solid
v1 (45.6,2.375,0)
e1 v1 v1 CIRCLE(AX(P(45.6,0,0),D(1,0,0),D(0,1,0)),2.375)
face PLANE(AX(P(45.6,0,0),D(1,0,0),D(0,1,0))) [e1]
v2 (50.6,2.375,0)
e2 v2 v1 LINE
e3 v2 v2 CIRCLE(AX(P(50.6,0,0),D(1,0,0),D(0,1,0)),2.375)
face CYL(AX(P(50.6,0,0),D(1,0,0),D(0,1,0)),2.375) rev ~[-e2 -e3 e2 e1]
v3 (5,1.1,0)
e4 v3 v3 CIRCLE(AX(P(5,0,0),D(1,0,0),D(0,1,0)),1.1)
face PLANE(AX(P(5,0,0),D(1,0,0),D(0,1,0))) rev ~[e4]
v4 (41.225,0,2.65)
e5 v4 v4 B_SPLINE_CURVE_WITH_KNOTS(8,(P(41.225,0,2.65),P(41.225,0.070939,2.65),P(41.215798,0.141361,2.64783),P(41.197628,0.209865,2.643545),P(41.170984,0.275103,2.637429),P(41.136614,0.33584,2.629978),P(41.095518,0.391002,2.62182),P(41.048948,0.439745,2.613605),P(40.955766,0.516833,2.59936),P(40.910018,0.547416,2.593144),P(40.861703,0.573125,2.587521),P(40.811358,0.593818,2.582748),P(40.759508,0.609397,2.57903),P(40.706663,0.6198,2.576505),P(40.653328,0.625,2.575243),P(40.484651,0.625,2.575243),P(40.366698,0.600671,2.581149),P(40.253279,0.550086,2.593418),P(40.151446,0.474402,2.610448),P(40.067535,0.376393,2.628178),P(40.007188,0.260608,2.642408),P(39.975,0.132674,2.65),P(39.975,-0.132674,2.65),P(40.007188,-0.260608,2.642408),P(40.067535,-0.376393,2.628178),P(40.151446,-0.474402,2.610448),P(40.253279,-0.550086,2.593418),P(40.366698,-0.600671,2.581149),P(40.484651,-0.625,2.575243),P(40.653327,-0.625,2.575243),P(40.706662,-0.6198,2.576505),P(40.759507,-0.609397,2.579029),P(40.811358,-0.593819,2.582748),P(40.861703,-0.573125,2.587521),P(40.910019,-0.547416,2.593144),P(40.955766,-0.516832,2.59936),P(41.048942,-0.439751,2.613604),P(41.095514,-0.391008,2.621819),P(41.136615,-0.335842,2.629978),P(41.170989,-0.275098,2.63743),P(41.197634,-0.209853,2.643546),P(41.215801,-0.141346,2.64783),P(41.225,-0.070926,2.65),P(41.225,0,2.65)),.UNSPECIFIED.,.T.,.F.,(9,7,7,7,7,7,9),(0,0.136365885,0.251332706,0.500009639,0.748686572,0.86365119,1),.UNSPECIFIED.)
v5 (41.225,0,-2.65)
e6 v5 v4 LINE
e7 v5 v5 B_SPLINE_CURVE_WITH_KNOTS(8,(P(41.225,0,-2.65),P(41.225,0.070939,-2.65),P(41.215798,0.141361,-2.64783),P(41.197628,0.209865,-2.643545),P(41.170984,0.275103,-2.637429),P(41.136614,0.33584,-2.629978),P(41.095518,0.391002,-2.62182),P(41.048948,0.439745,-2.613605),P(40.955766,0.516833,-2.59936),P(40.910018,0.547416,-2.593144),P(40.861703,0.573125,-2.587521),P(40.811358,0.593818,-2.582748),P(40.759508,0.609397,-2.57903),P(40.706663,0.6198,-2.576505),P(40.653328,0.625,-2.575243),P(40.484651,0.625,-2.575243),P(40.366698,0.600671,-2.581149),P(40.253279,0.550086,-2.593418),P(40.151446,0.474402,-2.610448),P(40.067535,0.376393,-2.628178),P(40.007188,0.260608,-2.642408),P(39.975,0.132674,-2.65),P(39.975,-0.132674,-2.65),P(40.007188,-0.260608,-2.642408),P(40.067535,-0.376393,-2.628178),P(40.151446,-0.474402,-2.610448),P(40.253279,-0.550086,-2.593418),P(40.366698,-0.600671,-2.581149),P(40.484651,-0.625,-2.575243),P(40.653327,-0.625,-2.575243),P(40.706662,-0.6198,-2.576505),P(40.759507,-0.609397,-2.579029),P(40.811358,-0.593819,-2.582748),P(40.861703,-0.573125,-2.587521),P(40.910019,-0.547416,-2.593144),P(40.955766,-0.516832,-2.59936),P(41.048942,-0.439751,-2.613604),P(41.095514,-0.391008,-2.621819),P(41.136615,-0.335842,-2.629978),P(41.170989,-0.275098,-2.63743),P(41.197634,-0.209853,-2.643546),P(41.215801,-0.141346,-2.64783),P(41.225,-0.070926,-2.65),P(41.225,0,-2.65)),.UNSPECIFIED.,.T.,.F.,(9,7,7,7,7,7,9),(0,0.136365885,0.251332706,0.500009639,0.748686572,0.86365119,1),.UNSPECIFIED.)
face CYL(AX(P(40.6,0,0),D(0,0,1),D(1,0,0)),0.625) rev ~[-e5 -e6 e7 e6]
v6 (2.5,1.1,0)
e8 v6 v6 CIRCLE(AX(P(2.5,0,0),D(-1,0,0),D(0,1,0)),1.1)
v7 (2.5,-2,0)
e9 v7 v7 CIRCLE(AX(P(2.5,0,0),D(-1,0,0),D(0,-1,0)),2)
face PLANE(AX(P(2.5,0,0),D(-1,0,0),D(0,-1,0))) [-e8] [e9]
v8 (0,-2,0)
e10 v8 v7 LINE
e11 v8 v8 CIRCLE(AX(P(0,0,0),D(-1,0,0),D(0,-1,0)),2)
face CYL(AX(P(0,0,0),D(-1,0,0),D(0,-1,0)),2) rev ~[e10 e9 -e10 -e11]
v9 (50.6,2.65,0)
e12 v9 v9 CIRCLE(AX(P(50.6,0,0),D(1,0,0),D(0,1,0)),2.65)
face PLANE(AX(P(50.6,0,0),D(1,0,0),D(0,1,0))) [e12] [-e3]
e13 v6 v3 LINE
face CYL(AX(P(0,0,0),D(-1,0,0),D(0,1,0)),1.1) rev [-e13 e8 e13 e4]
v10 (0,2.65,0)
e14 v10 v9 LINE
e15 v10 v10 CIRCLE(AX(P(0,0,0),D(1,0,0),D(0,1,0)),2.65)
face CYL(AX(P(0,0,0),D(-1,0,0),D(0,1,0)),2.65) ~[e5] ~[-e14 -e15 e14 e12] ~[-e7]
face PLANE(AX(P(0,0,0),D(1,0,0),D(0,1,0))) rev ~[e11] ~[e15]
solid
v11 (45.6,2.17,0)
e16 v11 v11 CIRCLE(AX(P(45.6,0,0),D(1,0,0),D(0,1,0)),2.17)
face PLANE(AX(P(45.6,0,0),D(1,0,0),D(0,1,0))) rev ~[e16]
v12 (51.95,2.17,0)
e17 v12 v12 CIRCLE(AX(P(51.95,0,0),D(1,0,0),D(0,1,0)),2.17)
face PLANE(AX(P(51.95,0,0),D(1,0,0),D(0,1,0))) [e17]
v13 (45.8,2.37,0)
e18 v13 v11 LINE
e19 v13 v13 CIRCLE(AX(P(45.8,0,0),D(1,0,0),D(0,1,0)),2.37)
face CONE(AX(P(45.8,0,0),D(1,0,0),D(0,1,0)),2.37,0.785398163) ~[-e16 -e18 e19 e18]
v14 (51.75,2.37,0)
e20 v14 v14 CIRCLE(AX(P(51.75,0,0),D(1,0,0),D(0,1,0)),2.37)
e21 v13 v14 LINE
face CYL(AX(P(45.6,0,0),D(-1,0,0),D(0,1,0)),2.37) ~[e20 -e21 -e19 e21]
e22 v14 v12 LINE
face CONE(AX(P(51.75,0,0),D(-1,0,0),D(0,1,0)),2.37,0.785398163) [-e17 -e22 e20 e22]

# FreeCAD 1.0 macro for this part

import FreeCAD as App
import Part
import Sketcher
from FreeCAD import Vector


def edges_at(feature, points):
    """Names of the edges that pass closest to the given points."""
    edges = feature.Shape.Edges
    near = lambda p: min(range(len(edges)), key=lambda i: edges[i].distToShape(Part.Vertex(*p))[0])
    return sorted({f"Edge{near(p) + 1}" for p in points})

doc = App.newDocument("Part")
params = doc.addObject("Spreadsheet::Sheet", "Params")
for row, (alias, value) in enumerate([
    ("sketch1_diameter", "5.3 mm"),
    ("pad1_length", "50.6 mm"),
    ("sketch2_diameter", "2.2 mm"),
    ("pocket1_length", "5 mm"),
    ("sketch3_diameter", "1.25 mm"),
    ("pocket2_length", "25 mm"),
    ("sketch4_diameter", "4 mm"),
    ("pocket3_length", "2.5 mm"),
    ("sketch5_diameter", "4.75 mm"),
    ("pocket4_length", "5 mm"),
    ("sketch6_diameter", "4.74 mm"),
    ("pad2_length", "6.35 mm"),
    ("chamfer_size", "0.2 mm"),
], start=1):
    params.set(f"A{row}", alias)
    params.set(f"B{row}", "=" + value)
    params.setAlias(f"B{row}", alias)

body = doc.addObject("PartDesign::Body", "Body")

# Sketch on YZ plane
sketch1 = body.newObject("Sketcher::SketchObject", "Sketch")
sketch1.AttachmentSupport = (doc.getObject("YZ_Plane"), [""])
sketch1.MapMode = "FlatFace"
sketch1.addGeometry(Part.Circle(Vector(0, 0, 0), Vector(0, 0, 1), 2.6), False)
sketch1.addConstraint(Sketcher.Constraint("Coincident", 0, 3, -1, 1))
sketch1.addConstraint(Sketcher.Constraint("Diameter", 0, 5.3))
sketch1.setExpression("Constraints[1]", "Params.sketch1_diameter")
pad1 = body.newObject("PartDesign::Pad", "Pad")
pad1.Profile = sketch1
pad1.setExpression("Length", "Params.pad1_length")

# Sketch on YZ plane
sketch2 = body.newObject("Sketcher::SketchObject", "Sketch001")
sketch2.AttachmentSupport = (doc.getObject("YZ_Plane"), [""])
sketch2.MapMode = "FlatFace"
sketch2.addGeometry(Part.Circle(Vector(0, 0, 0), Vector(0, 0, 1), 1.1), False)
sketch2.addConstraint(Sketcher.Constraint("Coincident", 0, 3, -1, 1))
sketch2.addConstraint(Sketcher.Constraint("Diameter", 0, 2.2))
sketch2.setExpression("Constraints[1]", "Params.sketch2_diameter")
pocket1 = body.newObject("PartDesign::Pocket", "Pocket")
pocket1.Profile = sketch2
pocket1.setExpression("Length", "Params.pocket1_length")
pocket1.Reversed = True

# Sketch on XY plane
sketch3 = body.newObject("Sketcher::SketchObject", "Sketch002")
sketch3.AttachmentSupport = (doc.getObject("XY_Plane"), [""])
sketch3.MapMode = "FlatFace"
sketch3.addGeometry(Part.Circle(Vector(40.6, 0, 0), Vector(0, 0, 1), 0.6), False)
sketch3.addConstraint(Sketcher.Constraint("PointOnObject", 0, 3, -1))
sketch3.addConstraint(Sketcher.Constraint("Diameter", 0, 1.25))
sketch3.addConstraint(Sketcher.Constraint("DistanceX", -1, 1, 0, 3, 40.6))
sketch3.setExpression("Constraints[1]", "Params.sketch3_diameter")
pocket2 = body.newObject("PartDesign::Pocket", "Pocket001")
pocket2.Profile = sketch3
pocket2.setExpression("Length", "Params.pocket2_length")
pocket2.Midplane = True

# Sketch on YZ plane
sketch4 = body.newObject("Sketcher::SketchObject", "Sketch003")
sketch4.AttachmentSupport = (doc.getObject("YZ_Plane"), [""])
sketch4.MapMode = "FlatFace"
sketch4.addGeometry(Part.Circle(Vector(0, 0, 0), Vector(0, 0, 1), 2), False)
sketch4.addConstraint(Sketcher.Constraint("Coincident", 0, 3, -1, 1))
sketch4.addConstraint(Sketcher.Constraint("Diameter", 0, 4.0))
sketch4.setExpression("Constraints[1]", "Params.sketch4_diameter")
pocket3 = body.newObject("PartDesign::Pocket", "Pocket002")
pocket3.Profile = sketch4
pocket3.setExpression("Length", "Params.pocket3_length")
pocket3.Reversed = True

# Sketch on YZ plane
sketch5 = body.newObject("Sketcher::SketchObject", "Sketch004")
sketch5.AttachmentSupport = (doc.getObject("YZ_Plane"), [""])
sketch5.MapMode = "FlatFace"
sketch5.AttachmentOffset = App.Placement(Vector(0, 0, 50.6), App.Rotation())
sketch5.addGeometry(Part.Circle(Vector(0, 0, 0), Vector(0, 0, 1), 2.4), False)
sketch5.addConstraint(Sketcher.Constraint("Coincident", 0, 3, -1, 1))
sketch5.addConstraint(Sketcher.Constraint("Diameter", 0, 4.75))
sketch5.setExpression("Constraints[1]", "Params.sketch5_diameter")
pocket4 = body.newObject("PartDesign::Pocket", "Pocket003")
pocket4.Profile = sketch5
pocket4.setExpression("Length", "Params.pocket4_length")
body2 = doc.addObject("PartDesign::Body", "Body001")

# Sketch on YZ plane
sketch6 = body2.newObject("Sketcher::SketchObject", "Sketch005")
sketch6.AttachmentSupport = (doc.getObject("YZ_Plane001"), [""])
sketch6.MapMode = "FlatFace"
sketch6.AttachmentOffset = App.Placement(Vector(0, 0, 45.6), App.Rotation())
sketch6.addGeometry(Part.Circle(Vector(0, 0, 0), Vector(0, 0, 1), 2.4), False)
sketch6.addConstraint(Sketcher.Constraint("Coincident", 0, 3, -1, 1))
sketch6.addConstraint(Sketcher.Constraint("Diameter", 0, 4.74))
sketch6.setExpression("Constraints[1]", "Params.sketch6_diameter")
pad2 = body2.newObject("PartDesign::Pad", "Pad001")
pad2.Profile = sketch6
pad2.setExpression("Length", "Params.pad2_length")
doc.recompute()

chamfer = body2.newObject("PartDesign::Chamfer", "Chamfer")
chamfer.Base = (pad2, edges_at(pad2, [(51.95, -2.37, 0), (45.6, -2.37, 0)]))
chamfer.setExpression("Size", "Params.chamfer_size")

doc.recompute()
